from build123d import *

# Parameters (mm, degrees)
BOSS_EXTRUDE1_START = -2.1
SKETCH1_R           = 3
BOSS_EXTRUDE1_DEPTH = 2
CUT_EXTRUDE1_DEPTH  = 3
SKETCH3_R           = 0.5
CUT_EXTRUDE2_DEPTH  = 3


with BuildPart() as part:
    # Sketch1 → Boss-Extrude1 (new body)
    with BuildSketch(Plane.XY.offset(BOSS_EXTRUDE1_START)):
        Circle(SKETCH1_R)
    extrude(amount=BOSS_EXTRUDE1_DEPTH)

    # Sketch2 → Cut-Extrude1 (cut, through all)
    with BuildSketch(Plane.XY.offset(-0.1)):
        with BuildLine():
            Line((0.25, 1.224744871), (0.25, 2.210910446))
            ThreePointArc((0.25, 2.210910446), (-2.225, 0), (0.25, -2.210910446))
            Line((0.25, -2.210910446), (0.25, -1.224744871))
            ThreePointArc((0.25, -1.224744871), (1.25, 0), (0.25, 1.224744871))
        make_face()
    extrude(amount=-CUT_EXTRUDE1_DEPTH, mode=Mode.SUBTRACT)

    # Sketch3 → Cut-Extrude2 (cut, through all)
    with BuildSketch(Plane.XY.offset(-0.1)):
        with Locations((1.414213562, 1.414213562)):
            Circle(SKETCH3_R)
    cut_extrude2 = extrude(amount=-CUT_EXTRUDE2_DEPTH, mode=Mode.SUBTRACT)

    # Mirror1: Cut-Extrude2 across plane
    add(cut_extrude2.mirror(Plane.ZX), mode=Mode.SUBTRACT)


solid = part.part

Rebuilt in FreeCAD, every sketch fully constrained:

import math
import FreeCAD as App
import Part
import Sketcher
from FreeCAD import Vector
Q = App.Units.Quantity

doc = App.newDocument("Part")
body = doc.addObject("PartDesign::Body", "Body")

sketch1 = body.newObject("Sketcher::SketchObject", "Sketch")
sketch1.AttachmentSupport = (doc.getObject("XY_Plane"), [""])
sketch1.MapMode = "FlatFace"
sketch1.AttachmentOffset = App.Placement(Vector(0, 0, -2.1), App.Rotation())
sketch1.addGeometry(Part.Circle(Vector(0, 0, 0), Vector(0, 0, 1), 3), False)
sketch1.addConstraint([
    Sketcher.Constraint("Coincident", 0, 3, -1, 1),
    Sketcher.Constraint("Diameter", 0, Q("6 mm")),
])
pad1 = body.newObject("PartDesign::Pad", "Pad")
pad1.Profile = sketch1
pad1.Length = 2

sketch2 = body.newObject("Sketcher::SketchObject", "Sketch001")
sketch2.AttachmentSupport = (doc.getObject("XY_Plane"), [""])
sketch2.MapMode = "FlatFace"
sketch2.AttachmentOffset = App.Placement(Vector(0, 0, -0.1), App.Rotation())
sketch2.addGeometry([
    Part.LineSegment(Vector(0.2, 1.2, 0), Vector(0.2, 2.2, 0)),
    Part.ArcOfCircle(Part.Circle(Vector(0, 0, 0), Vector(0, 0, 1), 2.2), math.radians(84), math.radians(276)),
    Part.LineSegment(Vector(0.2, -2.2, 0), Vector(0.2, -1.2, 0)),
    Part.ArcOfCircle(Part.Circle(Vector(0, 0, 0), Vector(0, 0, 1), 1.2), math.radians(-78), math.radians(78)),
], False)
sketch2.addConstraint([
    Sketcher.Constraint("Coincident", 0, 2, 1, 1),
    Sketcher.Constraint("Coincident", 1, 2, 2, 1),
    Sketcher.Constraint("Coincident", 2, 2, 3, 1),
    Sketcher.Constraint("Coincident", 3, 2, 0, 1),
    Sketcher.Constraint("Vertical", 0),
    Sketcher.Constraint("Vertical", 2),
    Sketcher.Constraint("Coincident", 1, 3, -1, 1),
    Sketcher.Constraint("Coincident", 3, 3, -1, 1),
    Sketcher.Constraint("Vertical", 0, 2, 1, 2),
    Sketcher.Constraint("Radius", 3, Q("1.25 mm")),
    Sketcher.Constraint("Radius", 1, Q("2.225 mm")),
    Sketcher.Constraint("DistanceX", -1, 1, 0, 2, Q("0.25 mm")),
])
pocket1 = body.newObject("PartDesign::Pocket", "Pocket")
pocket1.Profile = sketch2
pocket1.Type = "ThroughAll"

sketch3 = body.newObject("Sketcher::SketchObject", "Sketch002")
sketch3.AttachmentSupport = (doc.getObject("XY_Plane"), [""])
sketch3.MapMode = "FlatFace"
sketch3.AttachmentOffset = App.Placement(Vector(0, 0, -0.1), App.Rotation())
sketch3.addGeometry(Part.Circle(Vector(1.4, 1.4, 0), Vector(0, 0, 1), 0.5), False)
sketch3.addConstraint([
    Sketcher.Constraint("Diameter", 0, Q("1 mm")),
    Sketcher.Constraint("DistanceX", -1, 1, 0, 3, Q("1.414214 mm")),
    Sketcher.Constraint("DistanceY", -1, 1, 0, 3, Q("1.414214 mm")),
])
pocket2 = body.newObject("PartDesign::Pocket", "Pocket001")
pocket2.Profile = sketch3
pocket2.Type = "ThroughAll"
doc.recompute()

mirrored = body.newObject("PartDesign::Mirrored", "Mirrored")
mirrored.Originals = [pocket2]
mirrored.MirrorPlane = (doc.getObject("XZ_Plane"), [""])
body.Tip = mirrored

doc.recompute()
